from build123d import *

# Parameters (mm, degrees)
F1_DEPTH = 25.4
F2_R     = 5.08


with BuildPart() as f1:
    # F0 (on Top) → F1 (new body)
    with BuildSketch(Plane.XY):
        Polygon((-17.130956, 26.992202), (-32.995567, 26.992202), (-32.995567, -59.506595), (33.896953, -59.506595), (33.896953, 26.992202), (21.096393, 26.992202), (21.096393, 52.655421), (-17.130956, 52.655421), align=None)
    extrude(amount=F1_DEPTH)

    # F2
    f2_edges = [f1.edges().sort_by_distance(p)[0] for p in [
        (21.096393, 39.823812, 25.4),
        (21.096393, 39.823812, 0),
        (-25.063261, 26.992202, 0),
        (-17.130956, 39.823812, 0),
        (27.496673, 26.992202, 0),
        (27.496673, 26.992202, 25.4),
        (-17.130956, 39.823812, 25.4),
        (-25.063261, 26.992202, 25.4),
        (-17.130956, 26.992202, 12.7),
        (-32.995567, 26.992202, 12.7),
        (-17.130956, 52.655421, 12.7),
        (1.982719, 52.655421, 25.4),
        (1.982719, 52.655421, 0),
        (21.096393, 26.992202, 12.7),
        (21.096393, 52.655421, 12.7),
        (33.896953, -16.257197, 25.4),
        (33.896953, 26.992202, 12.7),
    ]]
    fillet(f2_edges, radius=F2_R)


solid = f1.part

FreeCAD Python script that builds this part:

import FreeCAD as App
import Part
import Sketcher
from FreeCAD import Vector
Q = App.Units.Quantity


def edges_at(feature, points):
    """Names of the edges that pass closest to the given points."""
    edges = feature.Shape.Edges
    near = lambda p: min(range(len(edges)), key=lambda i: edges[i].distToShape(Part.Vertex(*p))[0])
    return sorted({f"Edge{near(p) + 1}" for p in points})


def add_polygon(sketch, points):
    """Adds a closed chain of lines whose ends are joined by coincident constraints."""
    first, n = sketch.GeometryCount, len(points)
    for a, b in zip(points, points[1:] + points[:1]):
        sketch.addGeometry(Part.LineSegment(App.Vector(*a, 0), App.Vector(*b, 0)), False)
    for i in range(n):
        sketch.addConstraint(Sketcher.Constraint("Coincident", first + i, 2, first + (i + 1) % n, 1))

doc = App.newDocument("Part")
params = doc.addObject("Spreadsheet::Sheet", "Params")
for row, (alias, value) in enumerate([
    ("pad1_length", "1 in"),
    ("fillet_radius", "0.2 in"),
], start=1):
    params.set(f"A{row}", alias)
    params.set(f"B{row}", "=" + value)
    params.setAlias(f"B{row}", alias)

body = doc.addObject("PartDesign::Body", "Body")

# Sketch on XY plane
sketch1 = body.newObject("Sketcher::SketchObject", "Sketch")
sketch1.AttachmentSupport = (doc.getObject("XY_Plane"), [""])
sketch1.MapMode = "FlatFace"
add_polygon(sketch1, [(-17, 27), (-33, 27), (-33, -60), (34, -60), (34, 27), (21, 27), (21, 53), (-17, 53)])  # lines 0-7
sketch1.addConstraint(Sketcher.Constraint("Horizontal", 0))
sketch1.addConstraint(Sketcher.Constraint("Vertical", 1))
sketch1.addConstraint(Sketcher.Constraint("Horizontal", 2))
sketch1.addConstraint(Sketcher.Constraint("Vertical", 3))
sketch1.addConstraint(Sketcher.Constraint("Horizontal", 4))
sketch1.addConstraint(Sketcher.Constraint("Vertical", 5))
sketch1.addConstraint(Sketcher.Constraint("Horizontal", 6))
sketch1.addConstraint(Sketcher.Constraint("Vertical", 7))
sketch1.addConstraint(Sketcher.Constraint("Horizontal", 0, 2, 3, 2))
sketch1.addConstraint(Sketcher.Constraint("DistanceX", 0, 2, 0, 1, Q("15.864611 mm")))
sketch1.addConstraint(Sketcher.Constraint("DistanceX", 2, 1, 2, 2, Q("66.89252 mm")))
sketch1.addConstraint(Sketcher.Constraint("DistanceX", 4, 2, 4, 1, Q("12.80056 mm")))
sketch1.addConstraint(Sketcher.Constraint("DistanceY", 5, 1, 5, 2, Q("25.663219 mm")))
sketch1.addConstraint(Sketcher.Constraint("DistanceY", -1, 1, 0, 2, Q("26.992202 mm")))
sketch1.addConstraint(Sketcher.Constraint("DistanceY", 1, 2, 1, 1, Q("86.498797 mm")))
sketch1.addConstraint(Sketcher.Constraint("DistanceX", 0, 2, -1, 1, Q("32.995567 mm")))
pad1 = body.newObject("PartDesign::Pad", "Pad")
pad1.Profile = sketch1
pad1.setExpression("Length", "Params.pad1_length")
doc.recompute()

fillet = body.newObject("PartDesign::Fillet", "Fillet")
fillet.Base = (pad1, edges_at(pad1, [
    (21.096, 39.824, 25.4),
    (21.096, 39.824, 0),
    (-25.063, 26.992, 0),
    (-17.131, 39.824, 0),
    (27.497, 26.992, 0),
    (27.497, 26.992, 25.4),
    (-17.131, 39.824, 25.4),
    (-25.063, 26.992, 25.4),
    (-17.131, 26.992, 12.7),
    (-32.996, 26.992, 12.7),
    (-17.131, 52.655, 12.7),
    (1.983, 52.655, 25.4),
    (1.983, 52.655, 0),
    (21.096, 26.992, 12.7),
    (21.096, 52.655, 12.7),
    (33.897, -16.257, 25.4),
    (33.897, 26.992, 12.7),
]))
fillet.setExpression("Radius", "Params.fillet_radius")

doc.recompute()
